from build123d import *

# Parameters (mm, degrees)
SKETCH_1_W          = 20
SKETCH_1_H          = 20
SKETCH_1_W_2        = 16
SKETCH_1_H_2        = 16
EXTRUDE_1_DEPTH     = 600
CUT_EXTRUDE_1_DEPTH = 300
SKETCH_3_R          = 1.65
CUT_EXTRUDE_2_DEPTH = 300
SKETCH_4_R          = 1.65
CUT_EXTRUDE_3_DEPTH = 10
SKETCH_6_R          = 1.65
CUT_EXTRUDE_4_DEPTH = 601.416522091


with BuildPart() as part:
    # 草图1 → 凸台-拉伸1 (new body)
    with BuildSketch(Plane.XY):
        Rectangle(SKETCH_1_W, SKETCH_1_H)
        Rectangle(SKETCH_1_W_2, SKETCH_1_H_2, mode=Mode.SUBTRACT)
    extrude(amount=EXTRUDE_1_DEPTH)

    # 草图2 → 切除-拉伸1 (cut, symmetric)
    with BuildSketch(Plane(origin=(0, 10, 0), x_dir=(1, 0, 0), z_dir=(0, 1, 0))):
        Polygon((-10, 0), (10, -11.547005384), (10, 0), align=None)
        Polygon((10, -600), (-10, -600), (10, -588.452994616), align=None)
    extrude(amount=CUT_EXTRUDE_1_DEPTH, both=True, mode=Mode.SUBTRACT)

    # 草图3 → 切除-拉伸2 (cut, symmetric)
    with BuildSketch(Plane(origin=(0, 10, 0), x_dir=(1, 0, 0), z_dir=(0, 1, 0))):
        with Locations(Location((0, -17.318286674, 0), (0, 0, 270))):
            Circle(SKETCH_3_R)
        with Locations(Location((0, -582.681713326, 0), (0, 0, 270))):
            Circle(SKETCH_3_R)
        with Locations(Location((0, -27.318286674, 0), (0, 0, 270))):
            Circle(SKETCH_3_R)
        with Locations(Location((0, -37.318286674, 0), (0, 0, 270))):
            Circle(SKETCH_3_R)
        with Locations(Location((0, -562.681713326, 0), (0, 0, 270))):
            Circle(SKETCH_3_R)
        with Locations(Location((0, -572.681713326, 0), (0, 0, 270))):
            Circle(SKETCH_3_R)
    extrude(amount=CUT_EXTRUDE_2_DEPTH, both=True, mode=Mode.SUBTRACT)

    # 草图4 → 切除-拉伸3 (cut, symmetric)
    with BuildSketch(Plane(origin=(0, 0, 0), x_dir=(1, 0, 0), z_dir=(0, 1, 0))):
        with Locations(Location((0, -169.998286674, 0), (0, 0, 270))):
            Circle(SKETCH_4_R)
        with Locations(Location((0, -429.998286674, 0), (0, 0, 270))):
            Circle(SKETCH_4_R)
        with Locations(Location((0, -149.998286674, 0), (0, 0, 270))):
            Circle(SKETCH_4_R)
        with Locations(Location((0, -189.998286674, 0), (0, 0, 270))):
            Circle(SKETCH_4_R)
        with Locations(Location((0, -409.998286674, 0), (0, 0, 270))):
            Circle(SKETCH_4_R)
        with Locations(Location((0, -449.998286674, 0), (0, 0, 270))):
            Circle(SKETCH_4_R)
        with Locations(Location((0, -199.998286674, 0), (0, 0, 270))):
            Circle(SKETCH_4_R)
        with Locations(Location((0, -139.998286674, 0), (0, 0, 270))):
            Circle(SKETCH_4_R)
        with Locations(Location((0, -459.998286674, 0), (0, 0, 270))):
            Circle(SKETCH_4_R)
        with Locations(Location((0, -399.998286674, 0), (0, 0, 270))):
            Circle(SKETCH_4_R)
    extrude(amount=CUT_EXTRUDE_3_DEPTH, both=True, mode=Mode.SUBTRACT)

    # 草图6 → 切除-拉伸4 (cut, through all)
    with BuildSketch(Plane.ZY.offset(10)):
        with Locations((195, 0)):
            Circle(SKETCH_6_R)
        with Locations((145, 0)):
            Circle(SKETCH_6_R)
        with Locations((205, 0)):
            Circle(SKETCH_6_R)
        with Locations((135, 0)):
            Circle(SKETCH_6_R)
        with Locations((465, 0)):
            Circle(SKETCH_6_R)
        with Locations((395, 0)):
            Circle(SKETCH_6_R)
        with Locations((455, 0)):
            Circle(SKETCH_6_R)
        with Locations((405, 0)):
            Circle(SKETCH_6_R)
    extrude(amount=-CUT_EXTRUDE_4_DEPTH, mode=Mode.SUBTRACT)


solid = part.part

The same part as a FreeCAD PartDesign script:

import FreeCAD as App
import Part
import Sketcher

V = App.Vector
Q = App.Units.Quantity


def add_polygon(sketch, points):
    """Adds a closed chain of lines whose ends are joined by coincident constraints."""
    first, n = sketch.GeometryCount, len(points)
    for a, b in zip(points, points[1:] + points[:1]):
        sketch.addGeometry(Part.LineSegment(App.Vector(*a, 0), App.Vector(*b, 0)), False)
    for i in range(n):
        sketch.addConstraint(Sketcher.Constraint("Coincident", first + i, 2, first + (i + 1) % n, 1))

doc = App.newDocument("Part")
body = doc.addObject("PartDesign::Body", "Body")

sketch1 = body.newObject("Sketcher::SketchObject", "Sketch")
sketch1.AttachmentSupport = (doc.getObject("XY_Plane"), [""])
sketch1.MapMode = "FlatFace"
add_polygon(sketch1, [(-10, 10), (-10, -10), (10, -10), (10, 10)])
add_polygon(sketch1, [(8, -8), (-8, -8), (-8, 8), (8, 8)])
sketch1.addConstraint(Sketcher.Constraint("Vertical", 0))
sketch1.addConstraint(Sketcher.Constraint("Horizontal", 1))
sketch1.addConstraint(Sketcher.Constraint("Vertical", 2))
sketch1.addConstraint(Sketcher.Constraint("Horizontal", 3))
sketch1.addConstraint(Sketcher.Constraint("Horizontal", 4))
sketch1.addConstraint(Sketcher.Constraint("Vertical", 5))
sketch1.addConstraint(Sketcher.Constraint("Horizontal", 6))
sketch1.addConstraint(Sketcher.Constraint("Vertical", 7))
sketch1.addConstraint(Sketcher.Constraint("Symmetric", 0, 2, 2, 2, -1, 1))
sketch1.addConstraint(Sketcher.Constraint("Symmetric", 4, 2, 6, 2, -1, 1))
sketch1.addConstraint(Sketcher.Constraint("Equal", 3, 0))
sketch1.addConstraint(Sketcher.Constraint("Equal", 6, 5))
sketch1.addConstraint(Sketcher.Constraint("DistanceX", 1, 1, 1, 2, 20.0))
sketch1.addConstraint(Sketcher.Constraint("DistanceX", 4, 2, 4, 1, 16.0))
pad1 = body.newObject("PartDesign::Pad", "Pad")
pad1.Profile = sketch1
pad1.Length = 600

sketch2 = body.newObject("Sketcher::SketchObject", "Sketch001")
sketch2.AttachmentSupport = (doc.getObject("XZ_Plane"), [""])
sketch2.MapMode = "FlatFace"
sketch2.AttachmentOffset = App.Placement(V(0, 0, -10), App.Rotation())
add_polygon(sketch2, [(-10, 0), (10, 11.547005), (10, 0)])
add_polygon(sketch2, [(-10, 600), (10, 600), (10, 588.452995)])
sketch2.addConstraint(Sketcher.Constraint("Vertical", 1))
sketch2.addConstraint(Sketcher.Constraint("Horizontal", 2))
sketch2.addConstraint(Sketcher.Constraint("Horizontal", 3))
sketch2.addConstraint(Sketcher.Constraint("Vertical", 4))
sketch2.addConstraint(Sketcher.Constraint("Symmetric", 1, 2, 2, 2, -1, 1))
sketch2.addConstraint(Sketcher.Constraint("Vertical", 1, 2, 3, 2))
sketch2.addConstraint(Sketcher.Constraint("Vertical", 2, 2, 5, 2))
sketch2.addConstraint(Sketcher.Constraint("Equal", 1, 4))
sketch2.addConstraint(Sketcher.Constraint("DistanceX", 2, 2, 2, 1, 20.0))
sketch2.addConstraint(Sketcher.Constraint("Angle", 0, Q("30 deg")))
sketch2.addConstraint(Sketcher.Constraint("DistanceY", -1, 1, 3, 2, 600.0))
pocket1 = body.newObject("PartDesign::Pocket", "Pocket")
pocket1.Profile = sketch2
pocket1.Length = 600
pocket1.Midplane = True

sketch3 = body.newObject("Sketcher::SketchObject", "Sketch002")
sketch3.AttachmentSupport = (doc.getObject("XZ_Plane"), [""])
sketch3.MapMode = "FlatFace"
sketch3.AttachmentOffset = App.Placement(V(0, 0, -10), App.Rotation())
sketch3.addGeometry(Part.Circle(V(0, 17.3, 0), V(0, 0, 1), 1.6), False)
sketch3.addGeometry(Part.Circle(V(0, 582.7, 0), V(0, 0, 1), 1.6), False)
sketch3.addGeometry(Part.Circle(V(0, 27.3, 0), V(0, 0, 1), 1.6), False)
sketch3.addGeometry(Part.Circle(V(0, 37.3, 0), V(0, 0, 1), 1.6), False)
sketch3.addGeometry(Part.Circle(V(0, 562.7, 0), V(0, 0, 1), 1.6), False)
sketch3.addGeometry(Part.Circle(V(0, 572.7, 0), V(0, 0, 1), 1.6), False)
sketch3.addConstraint(Sketcher.Constraint("Equal", 0, 1))
sketch3.addConstraint(Sketcher.Constraint("Equal", 1, 2))
sketch3.addConstraint(Sketcher.Constraint("Equal", 2, 3))
sketch3.addConstraint(Sketcher.Constraint("Equal", 3, 4))
sketch3.addConstraint(Sketcher.Constraint("Equal", 4, 5))
sketch3.addConstraint(Sketcher.Constraint("PointOnObject", 0, 3, -2))
sketch3.addConstraint(Sketcher.Constraint("PointOnObject", 1, 3, -2))
sketch3.addConstraint(Sketcher.Constraint("PointOnObject", 2, 3, -2))
sketch3.addConstraint(Sketcher.Constraint("PointOnObject", 3, 3, -2))
sketch3.addConstraint(Sketcher.Constraint("PointOnObject", 4, 3, -2))
sketch3.addConstraint(Sketcher.Constraint("PointOnObject", 5, 3, -2))
sketch3.addConstraint(Sketcher.Constraint("Diameter", 0, 3.3))
sketch3.addConstraint(Sketcher.Constraint("DistanceY", 0, 3, 2, 3, 10.0))
sketch3.addConstraint(Sketcher.Constraint("DistanceY", 2, 3, 3, 3, 10.0))
sketch3.addConstraint(Sketcher.Constraint("DistanceY", 4, 3, 1, 3, 20.0))
sketch3.addConstraint(Sketcher.Constraint("DistanceY", 5, 3, 1, 3, 10.0))
sketch3.addConstraint(Sketcher.Constraint("DistanceY", -1, 1, 0, 3, 17.318287))
sketch3.addConstraint(Sketcher.Constraint("DistanceY", -1, 1, 1, 3, 582.681713))
pocket2 = body.newObject("PartDesign::Pocket", "Pocket001")
pocket2.Profile = sketch3
pocket2.Length = 600
pocket2.Midplane = True

sketch4 = body.newObject("Sketcher::SketchObject", "Sketch003")
sketch4.AttachmentSupport = (doc.getObject("XZ_Plane"), [""])
sketch4.MapMode = "FlatFace"
sketch4.addGeometry(Part.Circle(V(0, 170, 0), V(0, 0, 1), 1.6), False)
sketch4.addGeometry(Part.Circle(V(0, 430, 0), V(0, 0, 1), 1.6), False)
sketch4.addGeometry(Part.Circle(V(0, 150, 0), V(0, 0, 1), 1.6), False)
sketch4.addGeometry(Part.Circle(V(0, 190, 0), V(0, 0, 1), 1.6), False)
sketch4.addGeometry(Part.Circle(V(0, 410, 0), V(0, 0, 1), 1.6), False)
sketch4.addGeometry(Part.Circle(V(0, 450, 0), V(0, 0, 1), 1.6), False)
sketch4.addGeometry(Part.Circle(V(0, 200, 0), V(0, 0, 1), 1.6), False)
sketch4.addGeometry(Part.Circle(V(0, 140, 0), V(0, 0, 1), 1.6), False)
sketch4.addGeometry(Part.Circle(V(0, 460, 0), V(0, 0, 1), 1.6), False)
sketch4.addGeometry(Part.Circle(V(0, 400, 0), V(0, 0, 1), 1.6), False)
sketch4.addConstraint(Sketcher.Constraint("Equal", 0, 1))
sketch4.addConstraint(Sketcher.Constraint("Equal", 1, 2))
sketch4.addConstraint(Sketcher.Constraint("Equal", 2, 3))
sketch4.addConstraint(Sketcher.Constraint("Equal", 3, 4))
sketch4.addConstraint(Sketcher.Constraint("Equal", 4, 5))
sketch4.addConstraint(Sketcher.Constraint("Equal", 5, 6))
sketch4.addConstraint(Sketcher.Constraint("Equal", 6, 7))
sketch4.addConstraint(Sketcher.Constraint("Equal", 7, 8))
sketch4.addConstraint(Sketcher.Constraint("Equal", 8, 9))
sketch4.addConstraint(Sketcher.Constraint("PointOnObject", 0, 3, -2))
sketch4.addConstraint(Sketcher.Constraint("PointOnObject", 1, 3, -2))
sketch4.addConstraint(Sketcher.Constraint("PointOnObject", 2, 3, -2))
sketch4.addConstraint(Sketcher.Constraint("PointOnObject", 3, 3, -2))
sketch4.addConstraint(Sketcher.Constraint("PointOnObject", 4, 3, -2))
sketch4.addConstraint(Sketcher.Constraint("PointOnObject", 5, 3, -2))
sketch4.addConstraint(Sketcher.Constraint("PointOnObject", 6, 3, -2))
sketch4.addConstraint(Sketcher.Constraint("PointOnObject", 7, 3, -2))
sketch4.addConstraint(Sketcher.Constraint("PointOnObject", 8, 3, -2))
sketch4.addConstraint(Sketcher.Constraint("PointOnObject", 9, 3, -2))
sketch4.addConstraint(Sketcher.Constraint("Diameter", 0, 3.3))
sketch4.addConstraint(Sketcher.Constraint("DistanceY", 0, 3, 1, 3, 260.0))
sketch4.addConstraint(Sketcher.Constraint("DistanceY", 2, 3, 0, 3, 20.0))
sketch4.addConstraint(Sketcher.Constraint("DistanceY", 0, 3, 3, 3, 20.0))
sketch4.addConstraint(Sketcher.Constraint("DistanceY", 4, 3, 1, 3, 20.0))
sketch4.addConstraint(Sketcher.Constraint("DistanceY", 1, 3, 5, 3, 20.0))
sketch4.addConstraint(Sketcher.Constraint("DistanceY", 3, 3, 6, 3, 10.0))
sketch4.addConstraint(Sketcher.Constraint("DistanceY", 7, 3, 2, 3, 10.0))
sketch4.addConstraint(Sketcher.Constraint("DistanceY", 5, 3, 8, 3, 10.0))
sketch4.addConstraint(Sketcher.Constraint("DistanceY", 9, 3, 4, 3, 10.0))
sketch4.addConstraint(Sketcher.Constraint("DistanceY", -1, 1, 0, 3, 169.998287))
pocket3 = body.newObject("PartDesign::Pocket", "Pocket002")
pocket3.Profile = sketch4
pocket3.Length = 20
pocket3.Midplane = True

sketch5 = body.newObject("Sketcher::SketchObject", "Sketch004")
sketch5.AttachmentSupport = (doc.getObject("YZ_Plane"), [""])
sketch5.MapMode = "FlatFace"
sketch5.AttachmentOffset = App.Placement(V(0, 0, -10), App.Rotation())
sketch5.addGeometry(Part.Circle(V(0, 195, 0), V(0, 0, 1), 1.6), False)
sketch5.addGeometry(Part.Circle(V(0, 145, 0), V(0, 0, 1), 1.6), False)
sketch5.addGeometry(Part.Circle(V(0, 205, 0), V(0, 0, 1), 1.6), False)
sketch5.addGeometry(Part.Circle(V(0, 135, 0), V(0, 0, 1), 1.6), False)
sketch5.addGeometry(Part.Circle(V(0, 465, 0), V(0, 0, 1), 1.6), False)
sketch5.addGeometry(Part.Circle(V(0, 395, 0), V(0, 0, 1), 1.6), False)
sketch5.addGeometry(Part.Circle(V(0, 455, 0), V(0, 0, 1), 1.6), False)
sketch5.addGeometry(Part.Circle(V(0, 405, 0), V(0, 0, 1), 1.6), False)
sketch5.addConstraint(Sketcher.Constraint("Equal", 0, 1))
sketch5.addConstraint(Sketcher.Constraint("Equal", 1, 2))
sketch5.addConstraint(Sketcher.Constraint("Equal", 2, 3))
sketch5.addConstraint(Sketcher.Constraint("Equal", 3, 4))
sketch5.addConstraint(Sketcher.Constraint("Equal", 4, 5))
sketch5.addConstraint(Sketcher.Constraint("Equal", 5, 6))
sketch5.addConstraint(Sketcher.Constraint("Equal", 6, 7))
sketch5.addConstraint(Sketcher.Constraint("PointOnObject", 0, 3, -2))
sketch5.addConstraint(Sketcher.Constraint("PointOnObject", 1, 3, -2))
sketch5.addConstraint(Sketcher.Constraint("PointOnObject", 2, 3, -2))
sketch5.addConstraint(Sketcher.Constraint("PointOnObject", 3, 3, -2))
sketch5.addConstraint(Sketcher.Constraint("PointOnObject", 4, 3, -2))
sketch5.addConstraint(Sketcher.Constraint("PointOnObject", 5, 3, -2))
sketch5.addConstraint(Sketcher.Constraint("PointOnObject", 6, 3, -2))
sketch5.addConstraint(Sketcher.Constraint("PointOnObject", 7, 3, -2))
sketch5.addConstraint(Sketcher.Constraint("Diameter", 0, 3.3))
sketch5.addConstraint(Sketcher.Constraint("DistanceY", -1, 1, 0, 3, 195.0))
sketch5.addConstraint(Sketcher.Constraint("DistanceY", -1, 1, 1, 3, 145.0))
sketch5.addConstraint(Sketcher.Constraint("DistanceY", -1, 1, 2, 3, 205.0))
sketch5.addConstraint(Sketcher.Constraint("DistanceY", -1, 1, 3, 3, 135.0))
sketch5.addConstraint(Sketcher.Constraint("DistanceY", -1, 1, 4, 3, 465.0))
sketch5.addConstraint(Sketcher.Constraint("DistanceY", -1, 1, 5, 3, 395.0))
sketch5.addConstraint(Sketcher.Constraint("DistanceY", -1, 1, 6, 3, 455.0))
sketch5.addConstraint(Sketcher.Constraint("DistanceY", -1, 1, 7, 3, 405.0))
pocket4 = body.newObject("PartDesign::Pocket", "Pocket003")
pocket4.Profile = sketch5
pocket4.Type = "ThroughAll"
pocket4.Reversed = True

doc.recompute()
